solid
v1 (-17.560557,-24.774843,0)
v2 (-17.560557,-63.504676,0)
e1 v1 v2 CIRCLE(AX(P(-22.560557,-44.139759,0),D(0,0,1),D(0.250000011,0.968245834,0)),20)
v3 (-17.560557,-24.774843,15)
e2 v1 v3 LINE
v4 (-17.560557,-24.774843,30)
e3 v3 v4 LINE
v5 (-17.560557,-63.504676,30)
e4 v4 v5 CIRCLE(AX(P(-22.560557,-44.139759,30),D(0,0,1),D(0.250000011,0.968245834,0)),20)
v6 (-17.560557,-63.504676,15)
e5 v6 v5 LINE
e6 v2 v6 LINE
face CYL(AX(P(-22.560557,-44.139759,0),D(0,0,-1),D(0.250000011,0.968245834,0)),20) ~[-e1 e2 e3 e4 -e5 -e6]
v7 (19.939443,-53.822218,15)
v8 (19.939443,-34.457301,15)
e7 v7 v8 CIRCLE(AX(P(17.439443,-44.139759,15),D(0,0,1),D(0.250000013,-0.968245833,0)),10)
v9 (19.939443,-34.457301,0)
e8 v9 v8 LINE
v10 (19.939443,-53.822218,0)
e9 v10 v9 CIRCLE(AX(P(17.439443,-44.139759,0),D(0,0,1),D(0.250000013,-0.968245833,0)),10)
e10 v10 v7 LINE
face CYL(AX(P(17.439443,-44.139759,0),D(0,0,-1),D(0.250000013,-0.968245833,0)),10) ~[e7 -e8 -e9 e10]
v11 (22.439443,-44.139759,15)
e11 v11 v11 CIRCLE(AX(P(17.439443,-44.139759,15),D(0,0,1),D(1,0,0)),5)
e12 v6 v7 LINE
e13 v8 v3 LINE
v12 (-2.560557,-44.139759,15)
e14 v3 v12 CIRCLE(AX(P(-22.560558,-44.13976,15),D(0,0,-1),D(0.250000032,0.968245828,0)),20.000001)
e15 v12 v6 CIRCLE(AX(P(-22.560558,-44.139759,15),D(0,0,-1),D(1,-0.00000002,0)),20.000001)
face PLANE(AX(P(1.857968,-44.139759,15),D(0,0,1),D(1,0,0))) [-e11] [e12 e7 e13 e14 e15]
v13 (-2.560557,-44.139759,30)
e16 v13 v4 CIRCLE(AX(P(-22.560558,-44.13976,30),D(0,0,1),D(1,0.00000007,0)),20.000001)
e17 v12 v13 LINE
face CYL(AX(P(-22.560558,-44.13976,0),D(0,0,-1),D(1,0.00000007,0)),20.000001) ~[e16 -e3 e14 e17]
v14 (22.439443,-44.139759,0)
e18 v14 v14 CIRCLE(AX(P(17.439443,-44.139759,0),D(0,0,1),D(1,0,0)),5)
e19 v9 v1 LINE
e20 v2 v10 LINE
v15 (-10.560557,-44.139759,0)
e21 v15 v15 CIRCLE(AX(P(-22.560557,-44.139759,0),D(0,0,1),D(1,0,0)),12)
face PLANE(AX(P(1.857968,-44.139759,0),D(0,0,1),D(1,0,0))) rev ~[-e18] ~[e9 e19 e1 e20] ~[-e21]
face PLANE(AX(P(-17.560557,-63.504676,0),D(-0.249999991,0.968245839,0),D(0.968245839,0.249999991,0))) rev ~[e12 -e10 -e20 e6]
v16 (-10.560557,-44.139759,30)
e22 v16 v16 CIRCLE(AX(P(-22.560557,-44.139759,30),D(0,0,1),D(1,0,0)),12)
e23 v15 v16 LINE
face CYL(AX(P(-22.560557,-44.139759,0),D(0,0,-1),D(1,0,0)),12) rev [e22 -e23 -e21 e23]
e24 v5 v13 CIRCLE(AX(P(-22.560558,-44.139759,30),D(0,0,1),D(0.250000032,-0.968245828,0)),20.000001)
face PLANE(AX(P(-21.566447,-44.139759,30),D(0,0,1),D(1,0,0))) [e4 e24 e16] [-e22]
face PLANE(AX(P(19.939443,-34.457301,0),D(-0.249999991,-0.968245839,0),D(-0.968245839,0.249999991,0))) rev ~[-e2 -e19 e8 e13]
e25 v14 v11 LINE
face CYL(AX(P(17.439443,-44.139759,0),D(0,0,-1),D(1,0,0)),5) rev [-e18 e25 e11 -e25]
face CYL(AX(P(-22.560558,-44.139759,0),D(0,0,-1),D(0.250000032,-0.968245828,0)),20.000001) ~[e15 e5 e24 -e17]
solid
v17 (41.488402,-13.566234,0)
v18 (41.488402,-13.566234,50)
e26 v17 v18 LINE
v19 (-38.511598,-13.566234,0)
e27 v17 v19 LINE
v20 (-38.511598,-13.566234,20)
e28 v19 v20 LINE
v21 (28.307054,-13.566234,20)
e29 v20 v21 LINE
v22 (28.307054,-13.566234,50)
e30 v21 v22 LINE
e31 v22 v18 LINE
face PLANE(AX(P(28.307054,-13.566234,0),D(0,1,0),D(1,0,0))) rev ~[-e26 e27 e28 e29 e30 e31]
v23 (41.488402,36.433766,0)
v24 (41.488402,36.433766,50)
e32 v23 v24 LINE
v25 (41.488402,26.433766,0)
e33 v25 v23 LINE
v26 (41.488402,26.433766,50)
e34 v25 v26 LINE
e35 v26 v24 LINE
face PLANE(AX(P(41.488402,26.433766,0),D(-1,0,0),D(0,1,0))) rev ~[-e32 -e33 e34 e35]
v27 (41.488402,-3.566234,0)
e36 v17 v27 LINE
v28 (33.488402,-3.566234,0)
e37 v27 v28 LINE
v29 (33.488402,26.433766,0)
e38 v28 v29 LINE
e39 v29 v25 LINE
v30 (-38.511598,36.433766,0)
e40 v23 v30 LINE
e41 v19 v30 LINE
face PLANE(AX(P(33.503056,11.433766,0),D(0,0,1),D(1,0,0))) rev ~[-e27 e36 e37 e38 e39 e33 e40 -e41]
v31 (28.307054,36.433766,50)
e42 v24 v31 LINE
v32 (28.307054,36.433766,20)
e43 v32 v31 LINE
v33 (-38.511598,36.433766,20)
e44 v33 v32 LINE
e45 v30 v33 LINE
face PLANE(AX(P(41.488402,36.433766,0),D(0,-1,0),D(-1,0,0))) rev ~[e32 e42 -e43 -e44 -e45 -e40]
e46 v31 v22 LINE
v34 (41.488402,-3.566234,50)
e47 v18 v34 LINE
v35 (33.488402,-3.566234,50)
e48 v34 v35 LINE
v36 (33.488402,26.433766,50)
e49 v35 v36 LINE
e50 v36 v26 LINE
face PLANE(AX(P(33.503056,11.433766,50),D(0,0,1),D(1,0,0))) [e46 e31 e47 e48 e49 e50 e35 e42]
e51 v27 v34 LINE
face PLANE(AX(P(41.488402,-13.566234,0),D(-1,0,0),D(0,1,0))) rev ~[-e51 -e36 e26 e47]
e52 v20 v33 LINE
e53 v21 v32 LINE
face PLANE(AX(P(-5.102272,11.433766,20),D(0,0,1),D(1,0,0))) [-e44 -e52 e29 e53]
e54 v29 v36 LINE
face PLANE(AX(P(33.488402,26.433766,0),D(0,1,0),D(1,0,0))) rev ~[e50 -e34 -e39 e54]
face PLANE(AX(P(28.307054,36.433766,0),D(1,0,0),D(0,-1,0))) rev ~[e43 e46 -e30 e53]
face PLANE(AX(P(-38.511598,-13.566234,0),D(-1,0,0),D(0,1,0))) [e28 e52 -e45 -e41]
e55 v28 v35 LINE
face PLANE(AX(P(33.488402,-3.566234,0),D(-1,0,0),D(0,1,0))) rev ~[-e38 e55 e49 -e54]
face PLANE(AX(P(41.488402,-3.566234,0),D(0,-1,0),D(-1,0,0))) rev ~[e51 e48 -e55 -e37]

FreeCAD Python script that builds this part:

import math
import FreeCAD as App
import Part
import Sketcher
from FreeCAD import Vector


def add_polygon(sketch, points):
    """Adds a closed chain of lines whose ends are joined by coincident constraints."""
    first, n = sketch.GeometryCount, len(points)
    for a, b in zip(points, points[1:] + points[:1]):
        sketch.addGeometry(Part.LineSegment(App.Vector(*a, 0), App.Vector(*b, 0)), False)
    for i in range(n):
        sketch.addConstraint(Sketcher.Constraint("Coincident", first + i, 2, first + (i + 1) % n, 1))

doc = App.newDocument("Part")
body = doc.addObject("PartDesign::Body", "Body")

# Sketch on XY plane
sketch1 = body.newObject("Sketcher::SketchObject", "Sketch")
sketch1.AttachmentSupport = (doc.getObject("XY_Plane"), [""])
sketch1.MapMode = "FlatFace"
add_polygon(sketch1, [(-39, 36), (-39, -14), (28, -14), (28, 36)])  # lines 0-3
sketch1.addConstraint([
    Sketcher.Constraint("Vertical", 0),
    Sketcher.Constraint("Horizontal", 1),
    Sketcher.Constraint("Vertical", 2),
    Sketcher.Constraint("Horizontal", 3),
    Sketcher.Constraint("DistanceY", 0, 2, 0, 1, 50.0),
    Sketcher.Constraint("DistanceX", 1, 1, 1, 2, 66.818652),
    Sketcher.Constraint("DistanceX", 0, 2, -1, 1, 38.511598),
    Sketcher.Constraint("DistanceY", 0, 2, -1, 1, 13.566234),
])
pad1 = body.newObject("PartDesign::Pad", "Pad")
pad1.Profile = sketch1
pad1.Length = 20

# Sketch on XY plane
sketch2 = body.newObject("Sketcher::SketchObject", "Sketch001")
sketch2.AttachmentSupport = (doc.getObject("XY_Plane"), [""])
sketch2.MapMode = "FlatFace"
add_polygon(sketch2, [(41, 36), (28, 36), (28, -14), (41, -14), (41, -4), (33, -4), (33, 26), (41, 26)])  # lines 0-7
sketch2.addConstraint([
    Sketcher.Constraint("Horizontal", 0),
    Sketcher.Constraint("Vertical", 1),
    Sketcher.Constraint("Horizontal", 2),
    Sketcher.Constraint("Vertical", 3),
    Sketcher.Constraint("Horizontal", 4),
    Sketcher.Constraint("Vertical", 5),
    Sketcher.Constraint("Horizontal", 6),
    Sketcher.Constraint("Vertical", 7),
    Sketcher.Constraint("Vertical", 3, 2, 6, 2),
    Sketcher.Constraint("Equal", 3, 7),
    Sketcher.Constraint("DistanceX", 4, 2, 4, 1, 8.0),
    Sketcher.Constraint("DistanceY", 1, 2, 1, 1, 50.0),
    Sketcher.Constraint("DistanceY", 3, 1, 3, 2, 10.0),
    Sketcher.Constraint("DistanceX", 0, 2, 0, 1, 13.181348),
    Sketcher.Constraint("DistanceX", -1, 1, 0, 2, 28.307054),
    Sketcher.Constraint("DistanceY", -1, 1, 0, 2, 36.433766),
])
pad2 = body.newObject("PartDesign::Pad", "Pad001")
pad2.Profile = sketch2
pad2.Length = 50
body2 = doc.addObject("PartDesign::Body", "Body001")

# Sketch on XY plane
sketch3 = body2.newObject("Sketcher::SketchObject", "Sketch002")
sketch3.AttachmentSupport = (doc.getObject("XY_Plane001"), [""])
sketch3.MapMode = "FlatFace"
sketch3.addGeometry([
    Part.ArcOfCircle(Part.Circle(Vector(-23, -44, 0), Vector(0, 0, 1), 20), math.radians(-76), math.radians(0)),
    Part.ArcOfCircle(Part.Circle(Vector(-23, -44, 0), Vector(0, 0, 1), 20), math.radians(0), math.radians(76)),
    Part.ArcOfCircle(Part.Circle(Vector(-23, -44, 0), Vector(0, 0, 1), 20), math.radians(76), math.radians(284)),
    Part.Circle(Vector(-23, -44, 0), Vector(0, 0, 1), 12),
], False)
sketch3.addConstraint([
    Sketcher.Constraint("Tangent", 0, 2, 1, 1),
    Sketcher.Constraint("Tangent", 1, 2, 2, 1),
    Sketcher.Constraint("Tangent", 2, 2, 0, 1),
    Sketcher.Constraint("Coincident", 3, 3, 0, 3),
    Sketcher.Constraint("Horizontal", 3, 3, 0, 2),
    Sketcher.Constraint("Vertical", 1, 2, 2, 2),
    Sketcher.Constraint("Diameter", 3, 24.0),
    Sketcher.Constraint("Radius", 0, 20.000001),
    Sketcher.Constraint("DistanceX", 0, 3, 1, 2, 5.000001),
    Sketcher.Constraint("DistanceY", 0, 3, -1, 1, 44.139759),
    Sketcher.Constraint("DistanceX", 0, 3, -1, 1, 22.560558),
])
pad3 = body2.newObject("PartDesign::Pad", "Pad002")
pad3.Profile = sketch3
pad3.Length = 30

# Sketch on XY plane
sketch4 = body2.newObject("Sketcher::SketchObject", "Sketch003")
sketch4.AttachmentSupport = (doc.getObject("XY_Plane001"), [""])
sketch4.MapMode = "FlatFace"
sketch4.addGeometry([
    Part.ArcOfCircle(Part.Circle(Vector(-23, -44, 0), Vector(0, 0, 1), 20), math.radians(0), math.radians(76)),  # 0
    Part.ArcOfCircle(Part.Circle(Vector(-23, -44, 0), Vector(0, 0, 1), 20), math.radians(-76), math.radians(0)),  # 1
    Part.LineSegment(Vector(-18, -64, 0), Vector(20, -54, 0)),  # 2
    Part.ArcOfCircle(Part.Circle(Vector(17, -44, 0), Vector(0, 0, 1), 10), math.radians(-76), math.radians(76)),  # 3
    Part.LineSegment(Vector(20, -34, 0), Vector(-18, -25, 0)),  # 4
    Part.Circle(Vector(17, -44, 0), Vector(0, 0, 1), 5),  # 5
], False)
sketch4.addConstraint([
    Sketcher.Constraint("Tangent", 0, 1, 1, 2),
    Sketcher.Constraint("Tangent", 1, 1, 2, 1),
    Sketcher.Constraint("Tangent", 2, 2, 3, 1),
    Sketcher.Constraint("Tangent", 3, 2, 4, 1),
    Sketcher.Constraint("Tangent", 4, 2, 0, 2),
    Sketcher.Constraint("Coincident", 5, 3, 3, 3),
    Sketcher.Constraint("Equal", 0, 1),
    Sketcher.Constraint("Horizontal", 1, 3, 3, 3),
    Sketcher.Constraint("Horizontal", 5, 3, 0, 1),
    Sketcher.Constraint("Diameter", 5, 10.0),
    Sketcher.Constraint("Radius", 0, 20.000001),
    Sketcher.Constraint("Radius", 3, 10.0),
    Sketcher.Constraint("DistanceX", 0, 3, 3, 3, 40.000001),
    Sketcher.Constraint("DistanceY", 3, 2, -1, 1, 34.457301),
    Sketcher.Constraint("DistanceX", 0, 3, -1, 1, 22.560558),
])
pad4 = body2.newObject("PartDesign::Pad", "Pad003")
pad4.Profile = sketch4
pad4.Length = 15

doc.recompute()
